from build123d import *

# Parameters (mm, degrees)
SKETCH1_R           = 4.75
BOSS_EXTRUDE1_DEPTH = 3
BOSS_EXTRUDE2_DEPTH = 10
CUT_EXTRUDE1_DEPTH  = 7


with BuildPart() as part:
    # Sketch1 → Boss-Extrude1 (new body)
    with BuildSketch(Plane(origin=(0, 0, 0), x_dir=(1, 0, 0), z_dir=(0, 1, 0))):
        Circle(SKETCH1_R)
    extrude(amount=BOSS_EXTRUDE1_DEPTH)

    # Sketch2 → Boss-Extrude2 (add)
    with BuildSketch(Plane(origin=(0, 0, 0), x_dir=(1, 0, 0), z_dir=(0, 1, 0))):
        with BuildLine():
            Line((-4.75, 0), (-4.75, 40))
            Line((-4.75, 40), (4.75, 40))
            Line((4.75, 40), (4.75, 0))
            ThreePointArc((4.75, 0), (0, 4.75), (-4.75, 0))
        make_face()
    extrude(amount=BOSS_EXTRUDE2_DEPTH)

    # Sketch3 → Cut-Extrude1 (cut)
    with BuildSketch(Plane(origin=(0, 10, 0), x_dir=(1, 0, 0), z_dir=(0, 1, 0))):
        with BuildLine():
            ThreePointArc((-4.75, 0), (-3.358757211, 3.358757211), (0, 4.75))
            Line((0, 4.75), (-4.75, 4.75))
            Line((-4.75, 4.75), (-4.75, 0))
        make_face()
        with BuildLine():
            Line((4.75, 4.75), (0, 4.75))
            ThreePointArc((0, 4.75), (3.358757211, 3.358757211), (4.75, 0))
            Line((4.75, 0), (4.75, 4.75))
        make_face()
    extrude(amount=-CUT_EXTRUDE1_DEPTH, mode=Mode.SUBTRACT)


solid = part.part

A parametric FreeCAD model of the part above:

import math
import FreeCAD as App
import Part
import Sketcher

V = App.Vector

doc = App.newDocument("Part")
body = doc.addObject("PartDesign::Body", "Body")

# Sketch on XZ plane
sketch1 = body.newObject("Sketcher::SketchObject", "Sketch")
sketch1.AttachmentSupport = (doc.getObject("XZ_Plane"), [""])
sketch1.MapMode = "FlatFace"
sketch1.addGeometry(Part.Circle(V(0, 0, 0), V(0, 0, 1), 4.8), False)
sketch1.addConstraint([
    Sketcher.Constraint("Coincident", 0, 3, -1, 1),
    Sketcher.Constraint("Diameter", 0, 9.5),
])
pad1 = body.newObject("PartDesign::Pad", "Pad")
pad1.Profile = sketch1
pad1.Length = 3
pad1.Reversed = True

# Sketch on XZ plane
sketch2 = body.newObject("Sketcher::SketchObject", "Sketch001")
sketch2.AttachmentSupport = (doc.getObject("XZ_Plane"), [""])
sketch2.MapMode = "FlatFace"
sketch2.addGeometry([
    Part.LineSegment(V(-4.8, -40, 0), V(-4.8, 0, 0)),
    Part.ArcOfCircle(Part.Circle(V(0, 0, 0), V(0, 0, 1), 4.8), math.radians(180), math.radians(360)),
    Part.LineSegment(V(4.8, 0, 0), V(4.8, -40, 0)),
    Part.LineSegment(V(4.8, -40, 0), V(-4.8, -40, 0)),
], False)
sketch2.addConstraint([
    Sketcher.Constraint("Tangent", 0, 2, 1, 1),
    Sketcher.Constraint("Tangent", 1, 2, 2, 1),
    Sketcher.Constraint("Coincident", 2, 2, 3, 1),
    Sketcher.Constraint("Coincident", 3, 2, 0, 1),
    Sketcher.Constraint("Vertical", 0),
    Sketcher.Constraint("Vertical", 2),
    Sketcher.Constraint("Horizontal", 3),
    Sketcher.Constraint("Coincident", 1, 3, -1, 1),
    Sketcher.Constraint("DistanceY", 0, 1, 0, 2, 40.0),
    Sketcher.Constraint("Radius", 1, 4.75),
])
pad2 = body.newObject("PartDesign::Pad", "Pad001")
pad2.Profile = sketch2
pad2.Length = 10
pad2.Reversed = True

# Sketch on XZ plane
sketch3 = body.newObject("Sketcher::SketchObject", "Sketch002")
sketch3.AttachmentSupport = (doc.getObject("XZ_Plane"), [""])
sketch3.MapMode = "FlatFace"
sketch3.AttachmentOffset = App.Placement(V(0, 0, -10), App.Rotation())
sketch3.addGeometry([
    Part.ArcOfCircle(Part.Circle(V(0, 0, 0), V(0, 0, 1), 4.7), math.radians(180), math.radians(270)),  # 0
    Part.LineSegment(V(0, -4.8, 0), V(-4.8, -4.8, 0)),  # 1
    Part.LineSegment(V(-4.8, -4.8, 0), V(-4.8, 0, 0)),  # 2
    Part.LineSegment(V(4.8, -4.8, 0), V(0, -4.8, 0)),  # 3
    Part.ArcOfCircle(Part.Circle(V(0, 0, 0), V(0, 0, 1), 4.7), math.radians(-90), math.radians(0)),  # 4
    Part.LineSegment(V(4.8, 0, 0), V(4.8, -4.8, 0)),  # 5
], False)
sketch3.addConstraint([
    Sketcher.Constraint("Tangent", 0, 2, 1, 1),
    Sketcher.Constraint("Coincident", 1, 2, 2, 1),
    Sketcher.Constraint("Tangent", 2, 2, 0, 1),
    Sketcher.Constraint("Tangent", 3, 2, 4, 1),
    Sketcher.Constraint("Tangent", 4, 2, 5, 1),
    Sketcher.Constraint("Coincident", 5, 2, 3, 1),
    Sketcher.Constraint("Horizontal", 1),
    Sketcher.Constraint("Vertical", 2),
    Sketcher.Constraint("Horizontal", 3),
    Sketcher.Constraint("Vertical", 5),
    Sketcher.Constraint("Coincident", 0, 3, -1, 1),
    Sketcher.Constraint("Coincident", 4, 3, -1, 1),
    Sketcher.Constraint("Equal", 0, 4),
    Sketcher.Constraint("Radius", 0, 4.75),
])
pocket1 = body.newObject("PartDesign::Pocket", "Pocket")
pocket1.Profile = sketch3
pocket1.Length = 7
pocket1.Reversed = True

doc.recompute()
